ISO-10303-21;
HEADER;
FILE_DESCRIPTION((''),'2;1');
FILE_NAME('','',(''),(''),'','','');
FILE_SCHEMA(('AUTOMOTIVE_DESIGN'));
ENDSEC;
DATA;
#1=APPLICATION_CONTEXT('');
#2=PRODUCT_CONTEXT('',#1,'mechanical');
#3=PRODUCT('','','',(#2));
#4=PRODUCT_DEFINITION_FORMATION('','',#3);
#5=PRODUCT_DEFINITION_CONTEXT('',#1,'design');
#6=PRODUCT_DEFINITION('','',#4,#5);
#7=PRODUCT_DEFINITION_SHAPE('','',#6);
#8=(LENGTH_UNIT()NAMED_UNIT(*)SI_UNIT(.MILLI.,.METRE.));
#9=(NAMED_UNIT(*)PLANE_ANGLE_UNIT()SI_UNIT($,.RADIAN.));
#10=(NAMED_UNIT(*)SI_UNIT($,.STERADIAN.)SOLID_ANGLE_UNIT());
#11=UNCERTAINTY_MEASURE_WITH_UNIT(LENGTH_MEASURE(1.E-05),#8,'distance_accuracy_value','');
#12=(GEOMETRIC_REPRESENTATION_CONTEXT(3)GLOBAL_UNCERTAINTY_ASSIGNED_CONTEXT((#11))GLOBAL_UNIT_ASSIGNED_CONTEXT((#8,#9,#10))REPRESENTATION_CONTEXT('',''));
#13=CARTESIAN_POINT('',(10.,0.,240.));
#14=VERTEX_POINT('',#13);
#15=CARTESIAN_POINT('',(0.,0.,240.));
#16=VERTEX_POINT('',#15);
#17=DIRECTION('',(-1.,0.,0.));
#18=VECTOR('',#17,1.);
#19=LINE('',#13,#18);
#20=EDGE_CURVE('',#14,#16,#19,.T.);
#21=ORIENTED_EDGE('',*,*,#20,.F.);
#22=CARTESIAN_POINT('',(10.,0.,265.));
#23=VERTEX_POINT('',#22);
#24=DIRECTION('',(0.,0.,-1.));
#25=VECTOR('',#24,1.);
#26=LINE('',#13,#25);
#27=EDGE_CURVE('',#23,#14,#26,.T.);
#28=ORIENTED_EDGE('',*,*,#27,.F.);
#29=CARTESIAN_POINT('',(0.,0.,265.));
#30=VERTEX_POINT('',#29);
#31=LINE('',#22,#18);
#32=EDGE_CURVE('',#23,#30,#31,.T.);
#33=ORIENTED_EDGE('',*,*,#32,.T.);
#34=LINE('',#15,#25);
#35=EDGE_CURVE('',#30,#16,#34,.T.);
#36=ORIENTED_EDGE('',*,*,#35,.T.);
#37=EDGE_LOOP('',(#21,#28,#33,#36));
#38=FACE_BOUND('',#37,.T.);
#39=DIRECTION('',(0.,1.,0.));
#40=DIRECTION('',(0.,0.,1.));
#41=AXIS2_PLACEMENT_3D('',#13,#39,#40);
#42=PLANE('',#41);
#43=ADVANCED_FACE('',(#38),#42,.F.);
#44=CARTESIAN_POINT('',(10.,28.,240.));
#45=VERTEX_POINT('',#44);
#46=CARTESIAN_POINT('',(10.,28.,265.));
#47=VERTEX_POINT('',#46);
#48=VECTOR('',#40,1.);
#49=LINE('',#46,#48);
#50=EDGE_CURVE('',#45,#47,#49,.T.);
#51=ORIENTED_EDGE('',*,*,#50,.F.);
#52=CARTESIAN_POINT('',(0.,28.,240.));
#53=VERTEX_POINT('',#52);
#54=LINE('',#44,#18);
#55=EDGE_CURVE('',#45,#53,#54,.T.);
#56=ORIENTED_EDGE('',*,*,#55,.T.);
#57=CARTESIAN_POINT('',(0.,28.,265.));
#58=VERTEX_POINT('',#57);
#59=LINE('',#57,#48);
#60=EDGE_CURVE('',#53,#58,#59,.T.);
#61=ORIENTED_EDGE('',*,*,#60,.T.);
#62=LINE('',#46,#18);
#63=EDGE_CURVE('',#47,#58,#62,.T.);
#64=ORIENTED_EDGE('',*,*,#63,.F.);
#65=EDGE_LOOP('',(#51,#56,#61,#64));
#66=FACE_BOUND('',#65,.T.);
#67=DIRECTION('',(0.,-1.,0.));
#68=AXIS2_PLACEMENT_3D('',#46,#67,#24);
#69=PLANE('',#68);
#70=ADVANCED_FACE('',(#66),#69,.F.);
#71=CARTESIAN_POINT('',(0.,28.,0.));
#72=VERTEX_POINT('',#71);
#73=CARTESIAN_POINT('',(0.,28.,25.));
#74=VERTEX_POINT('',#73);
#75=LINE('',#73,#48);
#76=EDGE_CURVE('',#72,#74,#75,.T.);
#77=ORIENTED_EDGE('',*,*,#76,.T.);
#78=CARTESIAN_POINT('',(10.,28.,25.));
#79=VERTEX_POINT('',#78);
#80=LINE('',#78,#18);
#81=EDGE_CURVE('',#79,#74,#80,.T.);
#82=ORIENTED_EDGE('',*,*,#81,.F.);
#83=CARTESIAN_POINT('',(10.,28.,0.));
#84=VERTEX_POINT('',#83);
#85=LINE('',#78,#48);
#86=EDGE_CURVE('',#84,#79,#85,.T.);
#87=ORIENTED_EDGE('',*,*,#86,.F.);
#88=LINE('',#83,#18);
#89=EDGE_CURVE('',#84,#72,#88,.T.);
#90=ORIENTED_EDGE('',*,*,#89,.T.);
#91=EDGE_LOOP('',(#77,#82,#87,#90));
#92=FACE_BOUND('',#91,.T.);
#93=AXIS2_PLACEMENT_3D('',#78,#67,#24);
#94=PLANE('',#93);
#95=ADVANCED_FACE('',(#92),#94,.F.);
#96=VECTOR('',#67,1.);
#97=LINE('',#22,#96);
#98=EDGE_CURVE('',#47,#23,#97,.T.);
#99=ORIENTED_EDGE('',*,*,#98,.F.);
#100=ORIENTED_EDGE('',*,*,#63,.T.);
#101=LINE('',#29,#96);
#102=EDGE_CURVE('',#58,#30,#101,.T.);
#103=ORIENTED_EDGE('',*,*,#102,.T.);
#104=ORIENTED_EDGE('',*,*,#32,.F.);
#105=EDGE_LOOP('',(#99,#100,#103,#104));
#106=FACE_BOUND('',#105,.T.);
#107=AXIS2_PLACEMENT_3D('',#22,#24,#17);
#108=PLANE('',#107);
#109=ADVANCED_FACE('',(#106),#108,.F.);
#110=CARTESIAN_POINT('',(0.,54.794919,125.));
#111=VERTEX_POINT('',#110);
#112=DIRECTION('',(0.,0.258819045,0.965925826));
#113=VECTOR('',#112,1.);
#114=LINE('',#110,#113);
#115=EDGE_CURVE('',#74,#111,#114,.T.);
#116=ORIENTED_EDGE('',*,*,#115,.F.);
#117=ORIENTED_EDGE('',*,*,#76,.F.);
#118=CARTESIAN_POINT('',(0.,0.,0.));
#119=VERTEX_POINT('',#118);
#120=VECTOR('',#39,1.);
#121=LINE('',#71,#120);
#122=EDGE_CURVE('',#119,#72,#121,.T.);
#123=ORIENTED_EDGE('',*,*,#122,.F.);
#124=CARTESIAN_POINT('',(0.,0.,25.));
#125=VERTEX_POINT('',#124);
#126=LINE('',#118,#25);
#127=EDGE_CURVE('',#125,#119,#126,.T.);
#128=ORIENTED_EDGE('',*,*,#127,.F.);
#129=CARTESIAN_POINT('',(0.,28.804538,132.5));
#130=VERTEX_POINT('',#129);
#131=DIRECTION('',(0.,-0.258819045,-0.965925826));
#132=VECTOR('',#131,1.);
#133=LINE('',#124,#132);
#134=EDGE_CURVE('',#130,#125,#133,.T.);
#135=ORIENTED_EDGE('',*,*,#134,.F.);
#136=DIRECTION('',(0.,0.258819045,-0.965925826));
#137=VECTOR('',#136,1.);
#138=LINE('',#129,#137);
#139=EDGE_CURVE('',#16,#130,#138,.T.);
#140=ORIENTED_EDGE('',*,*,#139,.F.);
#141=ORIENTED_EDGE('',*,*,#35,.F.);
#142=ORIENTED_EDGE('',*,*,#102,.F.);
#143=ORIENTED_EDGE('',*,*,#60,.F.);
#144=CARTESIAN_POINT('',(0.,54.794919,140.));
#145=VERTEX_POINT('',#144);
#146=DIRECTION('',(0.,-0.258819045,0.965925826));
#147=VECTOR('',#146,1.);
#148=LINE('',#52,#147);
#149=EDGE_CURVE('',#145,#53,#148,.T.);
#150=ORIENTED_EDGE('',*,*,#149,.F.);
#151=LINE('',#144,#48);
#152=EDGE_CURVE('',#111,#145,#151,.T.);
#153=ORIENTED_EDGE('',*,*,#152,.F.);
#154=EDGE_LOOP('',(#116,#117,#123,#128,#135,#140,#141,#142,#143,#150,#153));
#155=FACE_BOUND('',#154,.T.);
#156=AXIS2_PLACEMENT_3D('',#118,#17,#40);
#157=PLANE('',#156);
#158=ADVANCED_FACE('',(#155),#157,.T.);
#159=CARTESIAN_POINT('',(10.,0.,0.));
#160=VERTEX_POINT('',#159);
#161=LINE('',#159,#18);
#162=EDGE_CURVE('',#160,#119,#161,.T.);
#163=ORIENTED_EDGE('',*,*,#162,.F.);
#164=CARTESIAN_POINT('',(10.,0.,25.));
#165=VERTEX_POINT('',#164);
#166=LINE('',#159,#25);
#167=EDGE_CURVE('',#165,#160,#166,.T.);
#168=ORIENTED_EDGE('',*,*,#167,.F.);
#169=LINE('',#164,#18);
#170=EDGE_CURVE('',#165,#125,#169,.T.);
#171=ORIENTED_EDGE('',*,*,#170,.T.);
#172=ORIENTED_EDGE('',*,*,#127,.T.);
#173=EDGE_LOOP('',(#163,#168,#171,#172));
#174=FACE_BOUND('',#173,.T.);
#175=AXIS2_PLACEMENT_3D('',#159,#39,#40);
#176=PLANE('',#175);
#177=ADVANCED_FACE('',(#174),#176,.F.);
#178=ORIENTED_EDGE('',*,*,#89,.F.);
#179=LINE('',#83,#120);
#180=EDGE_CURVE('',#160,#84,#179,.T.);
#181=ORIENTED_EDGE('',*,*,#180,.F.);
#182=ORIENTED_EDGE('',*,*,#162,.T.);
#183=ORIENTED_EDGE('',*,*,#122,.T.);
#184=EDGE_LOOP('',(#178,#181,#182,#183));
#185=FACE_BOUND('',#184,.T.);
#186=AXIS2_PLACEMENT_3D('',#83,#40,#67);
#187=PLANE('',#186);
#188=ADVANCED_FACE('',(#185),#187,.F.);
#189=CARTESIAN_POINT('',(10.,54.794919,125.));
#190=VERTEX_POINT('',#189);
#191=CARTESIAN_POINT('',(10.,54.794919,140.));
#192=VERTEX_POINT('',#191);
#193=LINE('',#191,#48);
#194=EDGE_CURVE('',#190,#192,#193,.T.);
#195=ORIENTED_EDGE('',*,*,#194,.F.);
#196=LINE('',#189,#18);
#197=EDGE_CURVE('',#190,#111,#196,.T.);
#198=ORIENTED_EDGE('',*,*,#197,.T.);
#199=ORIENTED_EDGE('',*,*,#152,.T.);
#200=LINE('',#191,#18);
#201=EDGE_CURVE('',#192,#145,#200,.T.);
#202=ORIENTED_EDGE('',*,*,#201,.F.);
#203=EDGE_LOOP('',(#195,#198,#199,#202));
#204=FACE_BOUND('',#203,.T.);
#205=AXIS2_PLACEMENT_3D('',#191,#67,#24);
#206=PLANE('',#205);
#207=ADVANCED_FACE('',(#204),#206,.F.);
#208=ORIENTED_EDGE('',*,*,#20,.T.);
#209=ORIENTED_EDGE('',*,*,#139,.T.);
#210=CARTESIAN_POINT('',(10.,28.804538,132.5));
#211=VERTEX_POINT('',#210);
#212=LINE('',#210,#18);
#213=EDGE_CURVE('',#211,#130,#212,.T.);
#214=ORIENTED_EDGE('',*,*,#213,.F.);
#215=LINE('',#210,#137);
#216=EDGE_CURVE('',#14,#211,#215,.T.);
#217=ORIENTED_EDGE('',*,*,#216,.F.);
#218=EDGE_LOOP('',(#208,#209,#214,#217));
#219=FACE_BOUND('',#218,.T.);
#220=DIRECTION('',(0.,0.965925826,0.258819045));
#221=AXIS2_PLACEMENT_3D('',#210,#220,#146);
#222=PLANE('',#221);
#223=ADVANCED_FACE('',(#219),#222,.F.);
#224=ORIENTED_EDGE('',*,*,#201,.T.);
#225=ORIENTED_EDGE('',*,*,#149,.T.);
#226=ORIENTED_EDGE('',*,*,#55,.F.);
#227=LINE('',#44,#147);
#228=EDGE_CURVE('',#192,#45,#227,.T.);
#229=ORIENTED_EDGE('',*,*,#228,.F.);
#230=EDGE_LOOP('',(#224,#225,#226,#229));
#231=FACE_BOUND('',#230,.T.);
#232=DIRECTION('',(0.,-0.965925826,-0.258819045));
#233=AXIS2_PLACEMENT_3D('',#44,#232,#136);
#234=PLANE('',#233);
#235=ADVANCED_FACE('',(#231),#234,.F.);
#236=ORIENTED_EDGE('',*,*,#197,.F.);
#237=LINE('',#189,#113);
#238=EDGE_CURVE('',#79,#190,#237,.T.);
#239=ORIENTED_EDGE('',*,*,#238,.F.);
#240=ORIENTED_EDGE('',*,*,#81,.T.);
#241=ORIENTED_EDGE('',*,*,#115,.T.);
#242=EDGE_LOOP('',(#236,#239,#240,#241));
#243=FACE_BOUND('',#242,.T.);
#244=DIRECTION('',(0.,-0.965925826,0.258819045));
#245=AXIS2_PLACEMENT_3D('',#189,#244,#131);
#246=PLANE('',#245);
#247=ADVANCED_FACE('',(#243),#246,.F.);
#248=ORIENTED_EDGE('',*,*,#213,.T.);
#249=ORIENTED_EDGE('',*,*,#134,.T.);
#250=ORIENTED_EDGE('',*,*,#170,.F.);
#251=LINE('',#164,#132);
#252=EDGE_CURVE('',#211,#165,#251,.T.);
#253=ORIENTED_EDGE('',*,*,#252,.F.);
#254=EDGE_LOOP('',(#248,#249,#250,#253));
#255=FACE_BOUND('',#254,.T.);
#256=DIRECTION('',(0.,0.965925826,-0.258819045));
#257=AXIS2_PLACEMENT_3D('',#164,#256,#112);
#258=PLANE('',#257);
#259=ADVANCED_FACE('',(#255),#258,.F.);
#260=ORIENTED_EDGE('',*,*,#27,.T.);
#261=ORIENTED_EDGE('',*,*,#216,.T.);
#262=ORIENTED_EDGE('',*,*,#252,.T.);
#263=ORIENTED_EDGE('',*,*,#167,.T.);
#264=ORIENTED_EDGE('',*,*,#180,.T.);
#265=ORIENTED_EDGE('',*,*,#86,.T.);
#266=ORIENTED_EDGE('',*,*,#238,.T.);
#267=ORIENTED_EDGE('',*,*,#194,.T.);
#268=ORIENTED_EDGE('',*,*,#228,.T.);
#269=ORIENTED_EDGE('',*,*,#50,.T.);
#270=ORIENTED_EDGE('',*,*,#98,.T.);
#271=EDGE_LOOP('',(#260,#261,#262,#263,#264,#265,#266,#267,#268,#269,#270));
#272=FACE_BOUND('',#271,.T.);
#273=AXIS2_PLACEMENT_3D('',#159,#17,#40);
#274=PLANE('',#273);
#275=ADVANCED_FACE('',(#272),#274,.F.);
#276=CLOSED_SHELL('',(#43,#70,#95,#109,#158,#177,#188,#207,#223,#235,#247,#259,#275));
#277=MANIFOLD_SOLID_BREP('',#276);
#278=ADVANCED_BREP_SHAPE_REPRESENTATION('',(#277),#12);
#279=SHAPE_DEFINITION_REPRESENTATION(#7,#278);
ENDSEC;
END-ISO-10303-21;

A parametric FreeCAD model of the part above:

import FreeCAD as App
import Part
import Sketcher
Q = App.Units.Quantity

doc = App.newDocument("Part")
params = doc.addObject("Spreadsheet::Sheet", "Params")
for row, (alias, value) in enumerate([
    ("sketch1_width", "28 mm"),
    ("sketch1_height", "25 mm"),
    ("sketch1_height2", "15 mm"),
    ("pad1_length", "10 mm"),
], start=1):
    params.set(f"A{row}", alias)
    params.set(f"B{row}", "=" + value)
    params.setAlias(f"B{row}", alias)

body = doc.addObject("PartDesign::Body", "Body")

# Sketch on YZ plane
sketch1 = body.newObject("Sketcher::SketchObject", "Sketch")
sketch1.AttachmentSupport = (doc.getObject("YZ_Plane"), [""])
sketch1.MapMode = "FlatFace"
sketch1.addGeometry([
    Part.LineSegment(App.Vector(0, 25, 0), App.Vector(0, 0, 0)),  # 0
    Part.LineSegment(App.Vector(0, 0, 0), App.Vector(28, 0, 0)),  # 1
    Part.LineSegment(App.Vector(28, 0, 0), App.Vector(28, 25, 0)),  # 2
    Part.LineSegment(App.Vector(28, 25, 0), App.Vector(55, 125, 0)),  # 3
    Part.LineSegment(App.Vector(55, 125, 0), App.Vector(55, 140, 0)),  # 4
    Part.LineSegment(App.Vector(55, 140, 0), App.Vector(28, 240, 0)),  # 5
    Part.LineSegment(App.Vector(28, 240, 0), App.Vector(28, 265, 0)),  # 6
    Part.LineSegment(App.Vector(28, 265, 0), App.Vector(0, 265, 0)),  # 7
    Part.LineSegment(App.Vector(0, 265, 0), App.Vector(0, 240, 0)),  # 8
    Part.LineSegment(App.Vector(0, 240, 0), App.Vector(29, 132, 0)),  # 9
    Part.LineSegment(App.Vector(29, 132, 0), App.Vector(0, 25, 0)),  # 10
], False)
sketch1.addConstraint([
    Sketcher.Constraint("Coincident", 0, 2, 1, 1),
    Sketcher.Constraint("Coincident", 1, 2, 2, 1),
    Sketcher.Constraint("Coincident", 2, 2, 3, 1),
    Sketcher.Constraint("Coincident", 3, 2, 4, 1),
    Sketcher.Constraint("Coincident", 4, 2, 5, 1),
    Sketcher.Constraint("Coincident", 5, 2, 6, 1),
    Sketcher.Constraint("Coincident", 6, 2, 7, 1),
    Sketcher.Constraint("Coincident", 7, 2, 8, 1),
    Sketcher.Constraint("Coincident", 8, 2, 9, 1),
    Sketcher.Constraint("Coincident", 9, 2, 10, 1),
    Sketcher.Constraint("Coincident", 10, 2, 0, 1),
    Sketcher.Constraint("Vertical", 0),
    Sketcher.Constraint("Horizontal", 1),
    Sketcher.Constraint("Vertical", 2),
    Sketcher.Constraint("Vertical", 4),
    Sketcher.Constraint("Vertical", 6),
    Sketcher.Constraint("Horizontal", 7),
    Sketcher.Constraint("Vertical", 8),
    Sketcher.Constraint("Coincident", 0, 2, -1, 1),
    Sketcher.Constraint("PointOnObject", 7, 2, -2),
    Sketcher.Constraint("Parallel", 5, 9),
    Sketcher.Constraint("Parallel", 3, 10),
    Sketcher.Constraint("Horizontal", 5, 2, 8, 2),
    Sketcher.Constraint("Horizontal", 2, 2, 10, 2),
    Sketcher.Constraint("Vertical", 2, 2, 5, 2),
    Sketcher.Constraint("Equal", 2, 6),
    Sketcher.Constraint("Equal", 3, 5),
    Sketcher.Constraint("DistanceX", 1, 1, 1, 2, Q("28 mm")),
    Sketcher.Constraint("DistanceY", 0, 2, 0, 1, Q("25 mm")),
    Sketcher.Constraint("DistanceY", 4, 1, 4, 2, Q("15 mm")),
    Sketcher.Constraint("Angle", 3, Q("75 deg")),
    Sketcher.Constraint("DistanceY", -1, 1, 3, 2, Q("125 mm")),
])
sketch1.setExpression("Constraints[27]", "Params.sketch1_width")
sketch1.setExpression("Constraints[28]", "Params.sketch1_height")
sketch1.setExpression("Constraints[29]", "Params.sketch1_height2")
pad1 = body.newObject("PartDesign::Pad", "Pad")
pad1.Profile = sketch1
pad1.setExpression("Length", "Params.pad1_length")

doc.recompute()
